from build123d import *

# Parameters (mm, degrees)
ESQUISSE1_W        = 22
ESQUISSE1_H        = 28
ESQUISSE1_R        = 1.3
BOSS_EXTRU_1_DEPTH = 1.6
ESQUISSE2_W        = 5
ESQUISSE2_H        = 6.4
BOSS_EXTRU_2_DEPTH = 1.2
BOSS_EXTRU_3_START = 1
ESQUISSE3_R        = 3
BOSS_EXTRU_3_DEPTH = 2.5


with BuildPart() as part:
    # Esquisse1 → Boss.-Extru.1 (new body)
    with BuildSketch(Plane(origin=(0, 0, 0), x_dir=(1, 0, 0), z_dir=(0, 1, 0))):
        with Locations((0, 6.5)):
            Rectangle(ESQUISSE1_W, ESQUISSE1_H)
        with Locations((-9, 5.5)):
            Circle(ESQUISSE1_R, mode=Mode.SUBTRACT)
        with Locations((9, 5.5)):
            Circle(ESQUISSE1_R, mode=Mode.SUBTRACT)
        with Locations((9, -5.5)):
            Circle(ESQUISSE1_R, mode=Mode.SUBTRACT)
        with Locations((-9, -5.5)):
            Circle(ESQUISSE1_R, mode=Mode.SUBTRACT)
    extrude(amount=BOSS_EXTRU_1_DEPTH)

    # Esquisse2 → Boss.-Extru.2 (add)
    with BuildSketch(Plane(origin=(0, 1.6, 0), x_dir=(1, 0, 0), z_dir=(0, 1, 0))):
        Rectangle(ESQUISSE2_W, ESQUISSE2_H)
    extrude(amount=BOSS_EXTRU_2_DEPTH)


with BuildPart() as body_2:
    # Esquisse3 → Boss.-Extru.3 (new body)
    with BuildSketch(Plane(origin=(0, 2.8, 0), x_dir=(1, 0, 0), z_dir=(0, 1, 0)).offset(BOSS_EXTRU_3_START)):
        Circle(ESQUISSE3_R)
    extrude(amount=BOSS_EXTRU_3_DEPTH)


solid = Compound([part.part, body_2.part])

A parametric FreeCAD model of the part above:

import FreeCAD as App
import Part
import Sketcher
from FreeCAD import Vector


def add_polygon(sketch, points):
    """Adds a closed chain of lines whose ends are joined by coincident constraints."""
    first, n = sketch.GeometryCount, len(points)
    for a, b in zip(points, points[1:] + points[:1]):
        sketch.addGeometry(Part.LineSegment(App.Vector(*a, 0), App.Vector(*b, 0)), False)
    for i in range(n):
        sketch.addConstraint(Sketcher.Constraint("Coincident", first + i, 2, first + (i + 1) % n, 1))

doc = App.newDocument("Part")
params = doc.addObject("Spreadsheet::Sheet", "Params")
for row, (alias, value) in enumerate([
    ("sketch1_diameter", "2.6 mm"),
    ("sketch1_width", "22 mm"),
    ("sketch1_height", "28 mm"),
    ("pad1_length", "1.6 mm"),
    ("sketch2_width", "5 mm"),
    ("sketch2_height", "6.4 mm"),
    ("pad2_length", "1.2 mm"),
    ("sketch3_diameter", "6 mm"),
    ("pad3_length", "2.5 mm"),
], start=1):
    params.set(f"A{row}", alias)
    params.set(f"B{row}", "=" + value)
    params.setAlias(f"B{row}", alias)

body = doc.addObject("PartDesign::Body", "Body")

# Sketch on XZ plane
sketch1 = body.newObject("Sketcher::SketchObject", "Sketch")
sketch1.AttachmentSupport = (doc.getObject("XZ_Plane"), [""])
sketch1.MapMode = "FlatFace"
add_polygon(sketch1, [(-11, -20.5), (-11, 7.5), (11, 7.5), (11, -20.5)])  # lines 0-3
sketch1.addGeometry(Part.Circle(Vector(-9, 5.5, 0), Vector(0, 0, 1), 1.3), False)  # 4
sketch1.addGeometry(Part.Circle(Vector(9, 5.5, 0), Vector(0, 0, 1), 1.3), False)  # 5
sketch1.addGeometry(Part.Circle(Vector(-9, -5.5, 0), Vector(0, 0, 1), 1.3), False)  # 6
sketch1.addGeometry(Part.Circle(Vector(9, -5.5, 0), Vector(0, 0, 1), 1.3), False)  # 7
sketch1.addConstraint(Sketcher.Constraint("Vertical", 0))
sketch1.addConstraint(Sketcher.Constraint("Horizontal", 1))
sketch1.addConstraint(Sketcher.Constraint("Vertical", 2))
sketch1.addConstraint(Sketcher.Constraint("Horizontal", 3))
sketch1.addConstraint(Sketcher.Constraint("Equal", 4, 5))
sketch1.addConstraint(Sketcher.Constraint("Equal", 5, 6))
sketch1.addConstraint(Sketcher.Constraint("Equal", 6, 7))
sketch1.addConstraint(Sketcher.Constraint("Symmetric", 5, 3, 6, 3, -1, 1))
sketch1.addConstraint(Sketcher.Constraint("Symmetric", 4, 3, 7, 3, -1, 1))
sketch1.addConstraint(Sketcher.Constraint("Symmetric", 4, 3, 5, 3, -2))
sketch1.addConstraint(Sketcher.Constraint("Diameter", 4, 2.6))
sketch1.addConstraint(Sketcher.Constraint("DistanceX", 1, 1, 1, 2, 22.0))
sketch1.addConstraint(Sketcher.Constraint("DistanceY", 0, 1, 0, 2, 28.0))
sketch1.addConstraint(Sketcher.Constraint("DistanceX", 4, 3, -1, 1, 9.0))
sketch1.addConstraint(Sketcher.Constraint("DistanceX", 0, 2, -1, 1, 11.0))
sketch1.addConstraint(Sketcher.Constraint("DistanceY", 6, 3, 4, 3, 11.0))
sketch1.addConstraint(Sketcher.Constraint("DistanceY", 4, 3, 0, 2, 2.0))
sketch1.setExpression("Constraints[14]", "Params.sketch1_diameter")
sketch1.setExpression("Constraints[15]", "Params.sketch1_width")
sketch1.setExpression("Constraints[16]", "Params.sketch1_height")
pad1 = body.newObject("PartDesign::Pad", "Pad")
pad1.Profile = sketch1
pad1.setExpression("Length", "Params.pad1_length")
pad1.Reversed = True

# Sketch on XZ plane
sketch2 = body.newObject("Sketcher::SketchObject", "Sketch001")
sketch2.AttachmentSupport = (doc.getObject("XZ_Plane"), [""])
sketch2.MapMode = "FlatFace"
sketch2.AttachmentOffset = App.Placement(Vector(0, 0, -1.6), App.Rotation())
add_polygon(sketch2, [(-2, -3), (-2, 3), (2, 3), (2, -3)])  # lines 0-3
sketch2.addConstraint(Sketcher.Constraint("Vertical", 0))
sketch2.addConstraint(Sketcher.Constraint("Horizontal", 1))
sketch2.addConstraint(Sketcher.Constraint("Vertical", 2))
sketch2.addConstraint(Sketcher.Constraint("Horizontal", 3))
sketch2.addConstraint(Sketcher.Constraint("Symmetric", 0, 2, 2, 2, -1, 1))
sketch2.addConstraint(Sketcher.Constraint("DistanceX", 1, 1, 1, 2, 5.0))
sketch2.addConstraint(Sketcher.Constraint("DistanceY", 0, 1, 0, 2, 6.4))
sketch2.setExpression("Constraints[9]", "Params.sketch2_width")
sketch2.setExpression("Constraints[10]", "Params.sketch2_height")
pad2 = body.newObject("PartDesign::Pad", "Pad001")
pad2.Profile = sketch2
pad2.setExpression("Length", "Params.pad2_length")
pad2.Reversed = True
body2 = doc.addObject("PartDesign::Body", "Body001")

# Sketch on XZ plane
sketch3 = body2.newObject("Sketcher::SketchObject", "Sketch002")
sketch3.AttachmentSupport = (doc.getObject("XZ_Plane001"), [""])
sketch3.MapMode = "FlatFace"
sketch3.AttachmentOffset = App.Placement(Vector(0, 0, -3.8), App.Rotation())
sketch3.addGeometry(Part.Circle(Vector(0, 0, 0), Vector(0, 0, 1), 3), False)
sketch3.addConstraint(Sketcher.Constraint("Coincident", 0, 3, -1, 1))
sketch3.addConstraint(Sketcher.Constraint("Diameter", 0, 6.0))
sketch3.setExpression("Constraints[1]", "Params.sketch3_diameter")
pad3 = body2.newObject("PartDesign::Pad", "Pad002")
pad3.Profile = sketch3
pad3.setExpression("Length", "Params.pad3_length")
pad3.Reversed = True

doc.recompute()
